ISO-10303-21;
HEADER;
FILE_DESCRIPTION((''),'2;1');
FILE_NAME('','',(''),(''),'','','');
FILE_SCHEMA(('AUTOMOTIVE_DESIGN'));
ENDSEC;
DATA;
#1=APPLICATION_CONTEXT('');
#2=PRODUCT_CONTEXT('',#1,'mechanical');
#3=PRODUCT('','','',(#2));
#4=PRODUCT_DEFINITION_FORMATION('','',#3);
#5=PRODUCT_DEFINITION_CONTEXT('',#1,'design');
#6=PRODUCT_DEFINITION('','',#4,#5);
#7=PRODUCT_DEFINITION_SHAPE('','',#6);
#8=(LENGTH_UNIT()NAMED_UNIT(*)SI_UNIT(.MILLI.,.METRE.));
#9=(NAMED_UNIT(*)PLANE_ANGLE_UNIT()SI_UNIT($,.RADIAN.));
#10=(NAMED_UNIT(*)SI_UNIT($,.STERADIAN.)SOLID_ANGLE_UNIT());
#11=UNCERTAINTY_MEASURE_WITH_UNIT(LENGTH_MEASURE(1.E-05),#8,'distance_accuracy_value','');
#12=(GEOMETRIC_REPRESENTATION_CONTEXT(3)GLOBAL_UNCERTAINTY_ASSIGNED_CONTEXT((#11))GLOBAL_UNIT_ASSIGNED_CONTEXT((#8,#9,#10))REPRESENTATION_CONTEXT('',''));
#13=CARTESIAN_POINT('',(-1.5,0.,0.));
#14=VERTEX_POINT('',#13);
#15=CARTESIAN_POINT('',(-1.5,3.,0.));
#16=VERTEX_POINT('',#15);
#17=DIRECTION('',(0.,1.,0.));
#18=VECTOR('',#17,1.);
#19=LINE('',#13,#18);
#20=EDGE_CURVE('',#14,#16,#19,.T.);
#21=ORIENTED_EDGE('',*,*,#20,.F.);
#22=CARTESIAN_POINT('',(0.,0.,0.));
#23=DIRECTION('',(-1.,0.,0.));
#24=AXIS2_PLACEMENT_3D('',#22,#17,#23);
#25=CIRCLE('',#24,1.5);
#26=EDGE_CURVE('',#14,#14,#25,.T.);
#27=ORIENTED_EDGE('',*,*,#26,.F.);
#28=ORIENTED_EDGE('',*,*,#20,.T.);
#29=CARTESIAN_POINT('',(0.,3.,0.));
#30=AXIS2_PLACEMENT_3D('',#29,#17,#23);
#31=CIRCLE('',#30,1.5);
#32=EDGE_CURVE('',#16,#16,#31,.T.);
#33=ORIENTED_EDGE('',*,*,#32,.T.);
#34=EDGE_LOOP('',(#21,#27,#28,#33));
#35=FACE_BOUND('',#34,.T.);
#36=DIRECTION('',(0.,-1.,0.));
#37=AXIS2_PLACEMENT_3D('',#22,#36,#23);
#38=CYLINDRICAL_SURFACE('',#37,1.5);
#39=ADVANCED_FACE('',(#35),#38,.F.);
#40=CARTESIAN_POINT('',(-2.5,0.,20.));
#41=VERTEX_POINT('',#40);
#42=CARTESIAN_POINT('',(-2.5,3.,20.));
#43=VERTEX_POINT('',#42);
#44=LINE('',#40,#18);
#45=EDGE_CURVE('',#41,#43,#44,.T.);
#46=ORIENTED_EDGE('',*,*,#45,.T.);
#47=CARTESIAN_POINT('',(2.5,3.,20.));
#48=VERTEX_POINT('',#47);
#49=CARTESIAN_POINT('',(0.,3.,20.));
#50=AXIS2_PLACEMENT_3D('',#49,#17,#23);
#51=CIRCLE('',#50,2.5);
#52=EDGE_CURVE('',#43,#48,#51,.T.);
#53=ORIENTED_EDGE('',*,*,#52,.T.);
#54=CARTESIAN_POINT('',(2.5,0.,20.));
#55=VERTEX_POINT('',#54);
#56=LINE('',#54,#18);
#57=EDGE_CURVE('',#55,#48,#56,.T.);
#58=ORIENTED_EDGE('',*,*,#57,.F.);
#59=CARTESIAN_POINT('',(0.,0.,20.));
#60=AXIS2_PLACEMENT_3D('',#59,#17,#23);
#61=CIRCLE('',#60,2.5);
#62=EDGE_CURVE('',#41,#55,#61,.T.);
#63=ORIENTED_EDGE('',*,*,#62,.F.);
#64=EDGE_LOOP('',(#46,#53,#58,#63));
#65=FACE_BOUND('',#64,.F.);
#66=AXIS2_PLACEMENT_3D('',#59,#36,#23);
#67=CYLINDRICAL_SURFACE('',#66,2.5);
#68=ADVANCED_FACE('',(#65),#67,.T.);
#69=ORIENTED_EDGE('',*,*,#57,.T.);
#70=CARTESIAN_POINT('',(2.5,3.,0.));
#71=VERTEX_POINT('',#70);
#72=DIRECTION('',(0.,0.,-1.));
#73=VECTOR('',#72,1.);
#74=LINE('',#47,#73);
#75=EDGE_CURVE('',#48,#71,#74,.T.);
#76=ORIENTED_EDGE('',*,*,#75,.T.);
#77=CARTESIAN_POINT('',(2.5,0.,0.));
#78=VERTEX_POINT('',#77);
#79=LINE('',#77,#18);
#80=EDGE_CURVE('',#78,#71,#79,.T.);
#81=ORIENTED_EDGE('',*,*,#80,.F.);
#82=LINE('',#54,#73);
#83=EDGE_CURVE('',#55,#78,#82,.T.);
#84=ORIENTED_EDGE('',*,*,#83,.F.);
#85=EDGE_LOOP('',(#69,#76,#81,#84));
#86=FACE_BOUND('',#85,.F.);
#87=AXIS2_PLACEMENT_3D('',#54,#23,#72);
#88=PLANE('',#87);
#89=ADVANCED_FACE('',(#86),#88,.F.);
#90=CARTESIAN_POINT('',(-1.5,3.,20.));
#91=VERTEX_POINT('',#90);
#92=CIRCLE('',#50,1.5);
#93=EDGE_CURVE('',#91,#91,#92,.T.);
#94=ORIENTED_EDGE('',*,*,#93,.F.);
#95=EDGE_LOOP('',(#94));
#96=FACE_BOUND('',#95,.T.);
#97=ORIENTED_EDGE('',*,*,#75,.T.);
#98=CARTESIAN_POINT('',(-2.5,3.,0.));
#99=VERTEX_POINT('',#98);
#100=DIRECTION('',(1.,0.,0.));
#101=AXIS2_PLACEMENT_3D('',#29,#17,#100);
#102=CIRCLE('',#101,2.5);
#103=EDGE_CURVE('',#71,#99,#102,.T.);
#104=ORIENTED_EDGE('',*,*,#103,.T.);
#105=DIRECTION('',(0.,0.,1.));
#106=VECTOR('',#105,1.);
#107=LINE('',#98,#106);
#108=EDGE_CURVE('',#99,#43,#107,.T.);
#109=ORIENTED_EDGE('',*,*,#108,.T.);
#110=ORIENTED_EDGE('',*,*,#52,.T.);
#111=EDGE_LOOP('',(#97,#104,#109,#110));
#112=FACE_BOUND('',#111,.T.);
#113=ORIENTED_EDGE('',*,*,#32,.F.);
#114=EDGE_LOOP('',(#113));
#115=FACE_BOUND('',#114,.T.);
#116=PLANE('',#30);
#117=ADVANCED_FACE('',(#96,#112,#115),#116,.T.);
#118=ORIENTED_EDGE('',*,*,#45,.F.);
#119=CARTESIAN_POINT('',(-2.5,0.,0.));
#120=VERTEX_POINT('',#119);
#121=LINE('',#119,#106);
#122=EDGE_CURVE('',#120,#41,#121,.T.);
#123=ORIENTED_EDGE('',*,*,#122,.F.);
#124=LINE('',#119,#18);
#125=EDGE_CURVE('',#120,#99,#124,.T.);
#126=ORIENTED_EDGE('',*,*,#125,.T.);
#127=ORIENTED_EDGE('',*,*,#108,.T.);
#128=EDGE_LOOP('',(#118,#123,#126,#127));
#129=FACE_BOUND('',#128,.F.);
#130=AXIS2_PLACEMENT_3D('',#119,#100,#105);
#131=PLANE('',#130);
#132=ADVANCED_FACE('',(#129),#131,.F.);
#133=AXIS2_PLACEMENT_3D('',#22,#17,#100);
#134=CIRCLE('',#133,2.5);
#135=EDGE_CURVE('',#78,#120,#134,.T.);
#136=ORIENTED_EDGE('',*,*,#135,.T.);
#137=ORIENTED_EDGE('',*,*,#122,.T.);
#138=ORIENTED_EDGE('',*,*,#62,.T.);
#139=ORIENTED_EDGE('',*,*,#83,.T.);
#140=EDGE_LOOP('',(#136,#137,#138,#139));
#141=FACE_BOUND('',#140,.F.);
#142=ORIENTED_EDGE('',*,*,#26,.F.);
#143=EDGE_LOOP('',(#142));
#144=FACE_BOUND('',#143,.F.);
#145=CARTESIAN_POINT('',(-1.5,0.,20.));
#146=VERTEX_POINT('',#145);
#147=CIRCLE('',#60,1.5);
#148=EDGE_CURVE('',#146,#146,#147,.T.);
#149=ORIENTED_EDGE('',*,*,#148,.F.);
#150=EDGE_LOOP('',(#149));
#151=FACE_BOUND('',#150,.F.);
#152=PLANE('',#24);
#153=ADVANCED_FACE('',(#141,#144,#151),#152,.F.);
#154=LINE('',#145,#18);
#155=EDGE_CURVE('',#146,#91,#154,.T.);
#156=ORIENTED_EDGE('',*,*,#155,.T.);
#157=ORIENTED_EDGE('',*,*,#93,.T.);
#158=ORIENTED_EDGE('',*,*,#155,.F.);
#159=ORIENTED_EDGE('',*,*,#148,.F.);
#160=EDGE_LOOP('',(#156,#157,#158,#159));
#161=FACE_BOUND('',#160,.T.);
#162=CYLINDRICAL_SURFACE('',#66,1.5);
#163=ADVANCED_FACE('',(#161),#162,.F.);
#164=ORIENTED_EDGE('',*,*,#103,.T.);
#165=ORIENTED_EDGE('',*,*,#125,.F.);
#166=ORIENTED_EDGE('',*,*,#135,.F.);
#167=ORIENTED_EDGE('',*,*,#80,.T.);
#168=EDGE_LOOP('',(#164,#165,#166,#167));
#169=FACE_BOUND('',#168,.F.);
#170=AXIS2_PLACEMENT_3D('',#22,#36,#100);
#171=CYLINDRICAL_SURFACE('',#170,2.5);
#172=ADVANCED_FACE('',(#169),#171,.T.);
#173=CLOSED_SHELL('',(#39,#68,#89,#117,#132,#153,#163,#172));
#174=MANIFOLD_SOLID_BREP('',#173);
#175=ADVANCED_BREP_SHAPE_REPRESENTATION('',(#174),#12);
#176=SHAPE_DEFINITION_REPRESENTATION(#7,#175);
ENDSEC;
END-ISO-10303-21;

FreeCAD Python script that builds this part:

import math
import FreeCAD as App
import Part
import Sketcher
from FreeCAD import Vector

doc = App.newDocument("Part")
body = doc.addObject("PartDesign::Body", "Body")

sketch1 = doc.addObject("Sketcher::SketchObject", "Sketch")
body.addObject(sketch1)
sketch1.AttachmentSupport = (doc.XZ_Plane, [""])
sketch1.MapMode = "FlatFace"
sketch1.addGeometry([
    Part.ArcOfCircle(Part.Circle(Vector(0, 0, 0), Vector(0, 0, 1), 2.5), math.radians(180), math.radians(360)),
    Part.LineSegment(Vector(-2.5, 0, 0), Vector(-2.5, 20, 0)),
    Part.ArcOfCircle(Part.Circle(Vector(0, 20, 0), Vector(0, 0, 1), 2.5), math.radians(0), math.radians(180)),
    Part.LineSegment(Vector(2.5, 20, 0), Vector(2.5, 0, 0)),
    Part.Circle(Vector(0, 0, 0), Vector(0, 0, 1), 1.5),
    Part.Circle(Vector(0, 20, 0), Vector(0, 0, 1), 1.5),
], False)
sketch1.addConstraint([
    Sketcher.Constraint("Tangent", 0, 1, 1, 1),
    Sketcher.Constraint("Tangent", 1, 2, 2, 2),
    Sketcher.Constraint("Tangent", 2, 1, 3, 1),
    Sketcher.Constraint("Tangent", 3, 2, 0, 2),
    Sketcher.Constraint("Vertical", 1),
    Sketcher.Constraint("Vertical", 3),
    Sketcher.Constraint("Coincident", 0, 3, -1, 1),
    Sketcher.Constraint("Coincident", 4, 3, -1, 1),
    Sketcher.Constraint("Coincident", 5, 3, 2, 3),
    Sketcher.Constraint("Equal", 4, 5),
    Sketcher.Constraint("Diameter", 4, 3.0),
    Sketcher.Constraint("Radius", 0, 2.5),
    Sketcher.Constraint("DistanceY", 1, 1, 1, 2, 20.0),
])
pad1 = doc.addObject("PartDesign::Pad", "Pad")
body.addObject(pad1)
pad1.Profile = sketch1
pad1.Length = 3
pad1.Reversed = True

doc.recompute()
